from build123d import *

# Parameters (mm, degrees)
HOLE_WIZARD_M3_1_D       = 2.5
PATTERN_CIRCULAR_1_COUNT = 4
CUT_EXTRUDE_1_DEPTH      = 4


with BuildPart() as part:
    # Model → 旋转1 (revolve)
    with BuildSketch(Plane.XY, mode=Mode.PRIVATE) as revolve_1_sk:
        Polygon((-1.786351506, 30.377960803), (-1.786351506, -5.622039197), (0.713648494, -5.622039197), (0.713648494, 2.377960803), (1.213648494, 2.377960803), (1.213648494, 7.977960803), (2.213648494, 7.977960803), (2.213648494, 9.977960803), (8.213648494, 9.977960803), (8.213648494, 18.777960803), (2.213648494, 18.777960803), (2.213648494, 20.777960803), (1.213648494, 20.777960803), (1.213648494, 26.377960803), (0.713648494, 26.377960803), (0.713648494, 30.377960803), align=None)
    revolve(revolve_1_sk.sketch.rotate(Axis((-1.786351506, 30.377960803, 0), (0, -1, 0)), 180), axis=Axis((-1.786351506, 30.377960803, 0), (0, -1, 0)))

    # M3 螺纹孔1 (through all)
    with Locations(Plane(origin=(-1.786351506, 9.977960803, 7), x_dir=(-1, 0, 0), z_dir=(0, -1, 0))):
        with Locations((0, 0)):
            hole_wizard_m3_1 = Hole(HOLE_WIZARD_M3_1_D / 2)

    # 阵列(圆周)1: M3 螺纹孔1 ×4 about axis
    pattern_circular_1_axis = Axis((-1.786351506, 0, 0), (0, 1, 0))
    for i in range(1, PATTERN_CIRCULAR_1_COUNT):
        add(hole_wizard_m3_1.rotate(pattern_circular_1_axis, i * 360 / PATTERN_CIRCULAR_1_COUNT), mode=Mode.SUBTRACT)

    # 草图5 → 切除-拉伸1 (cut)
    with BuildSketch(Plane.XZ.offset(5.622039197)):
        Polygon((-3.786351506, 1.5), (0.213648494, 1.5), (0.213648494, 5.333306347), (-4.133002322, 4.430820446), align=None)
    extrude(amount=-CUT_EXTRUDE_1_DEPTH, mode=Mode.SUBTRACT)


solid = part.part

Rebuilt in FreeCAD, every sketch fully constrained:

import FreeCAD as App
import Part
import Sketcher

V = App.Vector
Q = App.Units.Quantity


def add_polygon(sketch, points):
    """Adds a closed chain of lines whose ends are joined by coincident constraints."""
    first, n = sketch.GeometryCount, len(points)
    for a, b in zip(points, points[1:] + points[:1]):
        sketch.addGeometry(Part.LineSegment(App.Vector(*a, 0), App.Vector(*b, 0)), False)
    for i in range(n):
        sketch.addConstraint(Sketcher.Constraint("Coincident", first + i, 2, first + (i + 1) % n, 1))

doc = App.newDocument("Part")
body = doc.addObject("PartDesign::Body", "Body")

# Sketch on XY plane
sketch1 = body.newObject("Sketcher::SketchObject", "Sketch")
sketch1.AttachmentSupport = (doc.getObject("XY_Plane"), [""])
sketch1.MapMode = "FlatFace"
add_polygon(sketch1, [(-1.8, 30.4), (-1.8, -5.6), (0.7, -5.6), (0.7, 2.4), (1.2, 2.4), (1.2, 8), (2.2, 8), (2.2, 10), (8.2, 10), (8.2, 18.8), (2.2, 18.8), (2.2, 20.8), (1.2, 20.8), (1.2, 26.4), (0.7, 26.4), (0.7, 30.4)])  # lines 0-15
sketch1.addGeometry(Part.LineSegment(V(-1.8, 30.4, 0), V(-1.8, -5.6, 0)), True)  # axis
sketch1.addConstraint(Sketcher.Constraint("Vertical", 0))
sketch1.addConstraint(Sketcher.Constraint("Horizontal", 1))
sketch1.addConstraint(Sketcher.Constraint("Vertical", 2))
sketch1.addConstraint(Sketcher.Constraint("Horizontal", 3))
sketch1.addConstraint(Sketcher.Constraint("Vertical", 4))
sketch1.addConstraint(Sketcher.Constraint("Horizontal", 5))
sketch1.addConstraint(Sketcher.Constraint("Vertical", 6))
sketch1.addConstraint(Sketcher.Constraint("Horizontal", 7))
sketch1.addConstraint(Sketcher.Constraint("Vertical", 8))
sketch1.addConstraint(Sketcher.Constraint("Horizontal", 9))
sketch1.addConstraint(Sketcher.Constraint("Vertical", 10))
sketch1.addConstraint(Sketcher.Constraint("Horizontal", 11))
sketch1.addConstraint(Sketcher.Constraint("Vertical", 12))
sketch1.addConstraint(Sketcher.Constraint("Horizontal", 13))
sketch1.addConstraint(Sketcher.Constraint("Vertical", 14))
sketch1.addConstraint(Sketcher.Constraint("Horizontal", 15))
sketch1.addConstraint(Sketcher.Constraint("Vertical", 16))
sketch1.addConstraint(Sketcher.Constraint("Coincident", 16, 1, 15, 2))
sketch1.addConstraint(Sketcher.Constraint("Horizontal", 1, 2, 16, 2))
sketch1.addConstraint(Sketcher.Constraint("Vertical", 6, 2, 9, 2))
sketch1.addConstraint(Sketcher.Constraint("Vertical", 4, 2, 11, 2))
sketch1.addConstraint(Sketcher.Constraint("Vertical", 2, 2, 13, 2))
sketch1.addConstraint(Sketcher.Constraint("Equal", 6, 10))
sketch1.addConstraint(Sketcher.Constraint("Equal", 4, 12))
sketch1.addConstraint(Sketcher.Constraint("DistanceX", 5, 1, 5, 2, Q("1 mm")))
sketch1.addConstraint(Sketcher.Constraint("DistanceX", 7, 1, 7, 2, Q("6 mm")))
sketch1.addConstraint(Sketcher.Constraint("DistanceY", 0, 2, 0, 1, Q("36 mm")))
sketch1.addConstraint(Sketcher.Constraint("DistanceY", 2, 1, 2, 2, Q("8 mm")))
sketch1.addConstraint(Sketcher.Constraint("DistanceY", 6, 1, 6, 2, Q("2 mm")))
sketch1.addConstraint(Sketcher.Constraint("DistanceY", 14, 1, 14, 2, Q("4 mm")))
sketch1.addConstraint(Sketcher.Constraint("DistanceX", 1, 1, 1, 2, Q("2.5 mm")))
sketch1.addConstraint(Sketcher.Constraint("DistanceX", 3, 1, 3, 2, Q("0.5 mm")))
sketch1.addConstraint(Sketcher.Constraint("DistanceY", 4, 1, 4, 2, Q("5.6 mm")))
sketch1.addConstraint(Sketcher.Constraint("DistanceX", 0, 2, -1, 1, Q("1.786352 mm")))
sketch1.addConstraint(Sketcher.Constraint("DistanceY", 0, 2, -1, 1, Q("5.622039 mm")))
revolution = body.newObject("PartDesign::Revolution", "Revolution")
revolution.Profile = sketch1
revolution.ReferenceAxis = (sketch1, ["Axis0"])
revolution.Angle = 360

# Sketch on XZ plane
sketch2 = body.newObject("Sketcher::SketchObject", "Sketch001")
sketch2.AttachmentSupport = (doc.getObject("XZ_Plane"), [""])
sketch2.MapMode = "FlatFace"
sketch2.AttachmentOffset = App.Placement(V(0, 0, -9.977961), App.Rotation())
sketch2.addGeometry(Part.Circle(V(-1.8, 7, 0), V(0, 0, 1), 1.2), False)
sketch2.addConstraint(Sketcher.Constraint("Diameter", 0, Q("2.5 mm")))
sketch2.addConstraint(Sketcher.Constraint("DistanceY", -1, 1, 0, 3, Q("7 mm")))
sketch2.addConstraint(Sketcher.Constraint("DistanceX", 0, 3, -1, 1, Q("1.786352 mm")))
doc.recompute()
hole = body.newObject("PartDesign::Hole", "Hole")
hole.Profile = sketch2
hole.ThreadType = "None"
hole.Diameter = 2.5
hole.DepthType = "ThroughAll"
doc.recompute()

datumline = body.newObject("PartDesign::Line", "DatumLine")
datumline.Placement = App.Placement(V(-1.786352, 0, 0), App.Rotation(V(0, 0, 1), V(0, 1, 0)))
polarpattern = body.newObject("PartDesign::PolarPattern", "PolarPattern")
polarpattern.Originals = [hole]
polarpattern.Axis = (datumline, [""])
polarpattern.Angle = 360
polarpattern.Occurrences = 4
body.Tip = polarpattern

# Sketch on XZ plane
sketch3 = body.newObject("Sketcher::SketchObject", "Sketch002")
sketch3.AttachmentSupport = (doc.getObject("XZ_Plane"), [""])
sketch3.MapMode = "FlatFace"
sketch3.AttachmentOffset = App.Placement(V(0, 0, 5.622039), App.Rotation())
add_polygon(sketch3, [(-3.8, 1.5), (0.2, 1.5), (0.2, 5.3), (-4.1, 4.4)])  # lines 0-3
sketch3.addConstraint(Sketcher.Constraint("Horizontal", 0))
sketch3.addConstraint(Sketcher.Constraint("Vertical", 1))
sketch3.addConstraint(Sketcher.Constraint("DistanceX", 0, 1, 0, 2, Q("4 mm")))
sketch3.addConstraint(Sketcher.Constraint("DistanceY", -1, 1, 0, 2, Q("1.5 mm")))
sketch3.addConstraint(Sketcher.Constraint("Distance", 3, Q("2.95125 mm")))
sketch3.addConstraint(Sketcher.Constraint("DistanceY", 1, 1, 1, 2, Q("3.833306 mm")))
sketch3.addConstraint(Sketcher.Constraint("DistanceX", -1, 1, 0, 2, Q("0.213648 mm")))
sketch3.addConstraint(Sketcher.Constraint("DistanceY", -1, 1, 2, 2, Q("4.43082 mm")))
pocket1 = body.newObject("PartDesign::Pocket", "Pocket")
pocket1.Profile = sketch3
pocket1.Length = 4

doc.recompute()
